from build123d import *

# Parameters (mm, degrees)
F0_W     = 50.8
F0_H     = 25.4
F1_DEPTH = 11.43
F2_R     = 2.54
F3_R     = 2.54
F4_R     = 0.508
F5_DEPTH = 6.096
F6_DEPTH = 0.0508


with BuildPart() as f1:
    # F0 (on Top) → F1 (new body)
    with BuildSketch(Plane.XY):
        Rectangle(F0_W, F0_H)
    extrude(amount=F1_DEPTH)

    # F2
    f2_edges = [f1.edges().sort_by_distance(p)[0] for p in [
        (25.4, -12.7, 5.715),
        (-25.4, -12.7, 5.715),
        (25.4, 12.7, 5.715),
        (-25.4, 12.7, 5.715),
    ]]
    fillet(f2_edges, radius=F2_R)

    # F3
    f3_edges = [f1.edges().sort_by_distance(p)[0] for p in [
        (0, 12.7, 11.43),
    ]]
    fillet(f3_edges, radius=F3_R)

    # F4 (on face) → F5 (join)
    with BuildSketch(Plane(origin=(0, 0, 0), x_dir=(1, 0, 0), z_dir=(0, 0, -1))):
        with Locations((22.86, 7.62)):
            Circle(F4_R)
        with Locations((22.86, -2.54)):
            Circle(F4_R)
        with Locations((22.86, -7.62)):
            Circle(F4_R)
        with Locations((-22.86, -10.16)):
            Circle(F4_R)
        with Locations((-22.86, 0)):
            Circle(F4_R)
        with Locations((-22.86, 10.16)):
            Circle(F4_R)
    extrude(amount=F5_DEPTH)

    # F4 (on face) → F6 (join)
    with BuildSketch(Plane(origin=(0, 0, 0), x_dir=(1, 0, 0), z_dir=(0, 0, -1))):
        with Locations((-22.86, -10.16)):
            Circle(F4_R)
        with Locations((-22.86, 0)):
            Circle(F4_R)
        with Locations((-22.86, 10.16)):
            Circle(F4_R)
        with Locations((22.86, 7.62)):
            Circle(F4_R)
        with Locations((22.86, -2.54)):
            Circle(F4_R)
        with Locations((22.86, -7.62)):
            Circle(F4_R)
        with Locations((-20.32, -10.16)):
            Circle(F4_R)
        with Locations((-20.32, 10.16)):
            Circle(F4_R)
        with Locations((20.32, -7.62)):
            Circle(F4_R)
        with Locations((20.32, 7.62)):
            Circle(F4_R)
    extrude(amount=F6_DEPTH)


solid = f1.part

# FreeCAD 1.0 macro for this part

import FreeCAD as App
import Part
import Sketcher
from FreeCAD import Vector
Q = App.Units.Quantity


def edges_at(feature, points):
    """Names of the edges that pass closest to the given points."""
    edges = feature.Shape.Edges
    near = lambda p: min(range(len(edges)), key=lambda i: edges[i].distToShape(Part.Vertex(*p))[0])
    return sorted({f"Edge{near(p) + 1}" for p in points})


def add_polygon(sketch, points):
    """Adds a closed chain of lines whose ends are joined by coincident constraints."""
    first, n = sketch.GeometryCount, len(points)
    for a, b in zip(points, points[1:] + points[:1]):
        sketch.addGeometry(Part.LineSegment(App.Vector(*a, 0), App.Vector(*b, 0)), False)
    for i in range(n):
        sketch.addConstraint(Sketcher.Constraint("Coincident", first + i, 2, first + (i + 1) % n, 1))

doc = App.newDocument("Part")
body = doc.addObject("PartDesign::Body", "Body")

# Sketch on XY plane
sketch1 = doc.addObject("Sketcher::SketchObject", "Sketch")
body.addObject(sketch1)
sketch1.AttachmentSupport = (doc.XY_Plane, [""])
sketch1.MapMode = "FlatFace"
add_polygon(sketch1, [(-25, 13), (-25, -13), (25, -13), (25, 13)])  # lines 0-3
sketch1.addConstraint([
    Sketcher.Constraint("Vertical", 0),
    Sketcher.Constraint("Horizontal", 1),
    Sketcher.Constraint("Vertical", 2),
    Sketcher.Constraint("Horizontal", 3),
    Sketcher.Constraint("Symmetric", 0, 2, 2, 2, -1, 1),
    Sketcher.Constraint("DistanceX", 1, 1, 1, 2, Q("2 in")),
    Sketcher.Constraint("DistanceY", 0, 2, 0, 1, Q("1 in")),
])
pad1 = doc.addObject("PartDesign::Pad", "Pad")
body.addObject(pad1)
pad1.Profile = sketch1
pad1.Length = Q("0.45 in")
doc.recompute()

fillet = doc.addObject("PartDesign::Fillet", "Fillet")
body.addObject(fillet)
fillet.Base = (pad1, edges_at(pad1, [
    (25.4, -12.7, 5.715),
    (-25.4, -12.7, 5.715),
    (25.4, 12.7, 5.715),
    (-25.4, 12.7, 5.715),
]))
fillet.Radius = Q("0.1 in")
doc.recompute()

fillet2 = doc.addObject("PartDesign::Fillet", "Fillet001")
body.addObject(fillet2)
fillet2.Base = (fillet, edges_at(fillet, [(0, 12.7, 11.43)]))
fillet2.Radius = Q("0.1 in")

# Sketch on XY plane
sketch2 = doc.addObject("Sketcher::SketchObject", "Sketch001")
body.addObject(sketch2)
sketch2.AttachmentSupport = (doc.XY_Plane, [""])
sketch2.MapMode = "FlatFace"
sketch2.addGeometry([
    Part.Circle(Vector(22.9, -7.6, 0), Vector(0, 0, 1), 0.5),  # 0
    Part.Circle(Vector(22.9, 2.5, 0), Vector(0, 0, 1), 0.5),  # 1
    Part.Circle(Vector(22.9, 7.6, 0), Vector(0, 0, 1), 0.5),  # 2
    Part.Circle(Vector(-22.9, 10.2, 0), Vector(0, 0, 1), 0.5),  # 3
    Part.Circle(Vector(-22.9, 0, 0), Vector(0, 0, 1), 0.5),  # 4
    Part.Circle(Vector(-22.9, -10.2, 0), Vector(0, 0, 1), 0.5),  # 5
], False)
sketch2.addConstraint([
    Sketcher.Constraint("Equal", 0, 1),
    Sketcher.Constraint("Equal", 1, 2),
    Sketcher.Constraint("Equal", 2, 3),
    Sketcher.Constraint("Equal", 3, 4),
    Sketcher.Constraint("Equal", 4, 5),
    Sketcher.Constraint("Symmetric", 0, 3, 2, 3, -1),
    Sketcher.Constraint("Symmetric", 3, 3, 5, 3, -1),
    Sketcher.Constraint("PointOnObject", 4, 3, -1),
    Sketcher.Constraint("Vertical", 0, 3, 1, 3),
    Sketcher.Constraint("Vertical", 3, 3, 4, 3),
    Sketcher.Constraint("Diameter", 0, Q("0.04 in")),
    Sketcher.Constraint("DistanceX", -1, 1, 0, 3, Q("0.9 in")),
    Sketcher.Constraint("DistanceY", 0, 3, -1, 1, Q("0.3 in")),
    Sketcher.Constraint("DistanceY", -1, 1, 1, 3, Q("0.1 in")),
    Sketcher.Constraint("DistanceX", 3, 3, -1, 1, Q("0.9 in")),
    Sketcher.Constraint("DistanceY", -1, 1, 3, 3, Q("0.4 in")),
])
pad2 = doc.addObject("PartDesign::Pad", "Pad001")
body.addObject(pad2)
pad2.Profile = sketch2
pad2.Length = Q("0.24 in")
pad2.Reversed = True

# Sketch on XY plane
sketch3 = doc.addObject("Sketcher::SketchObject", "Sketch002")
body.addObject(sketch3)
sketch3.AttachmentSupport = (doc.XY_Plane, [""])
sketch3.MapMode = "FlatFace"
sketch3.addGeometry([
    Part.Circle(Vector(-22.9, 10.2, 0), Vector(0, 0, 1), 0.5),  # 0
    Part.Circle(Vector(-22.9, 0, 0), Vector(0, 0, 1), 0.5),  # 1
    Part.Circle(Vector(-22.9, -10.2, 0), Vector(0, 0, 1), 0.5),  # 2
    Part.Circle(Vector(22.9, -7.6, 0), Vector(0, 0, 1), 0.5),  # 3
    Part.Circle(Vector(22.9, 2.5, 0), Vector(0, 0, 1), 0.5),  # 4
    Part.Circle(Vector(22.9, 7.6, 0), Vector(0, 0, 1), 0.5),  # 5
    Part.Circle(Vector(-20.3, 10.2, 0), Vector(0, 0, 1), 0.5),  # 6
    Part.Circle(Vector(-20.3, -10.2, 0), Vector(0, 0, 1), 0.5),  # 7
    Part.Circle(Vector(20.3, 7.6, 0), Vector(0, 0, 1), 0.5),  # 8
    Part.Circle(Vector(20.3, -7.6, 0), Vector(0, 0, 1), 0.5),  # 9
], False)
sketch3.addConstraint([
    Sketcher.Constraint("Equal", 0, 1),
    Sketcher.Constraint("Equal", 1, 2),
    Sketcher.Constraint("Equal", 2, 3),
    Sketcher.Constraint("Equal", 3, 4),
    Sketcher.Constraint("Equal", 4, 5),
    Sketcher.Constraint("Equal", 5, 6),
    Sketcher.Constraint("Equal", 6, 7),
    Sketcher.Constraint("Equal", 7, 8),
    Sketcher.Constraint("Equal", 8, 9),
    Sketcher.Constraint("Symmetric", 0, 3, 2, 3, -1),
    Sketcher.Constraint("Symmetric", 3, 3, 5, 3, -1),
    Sketcher.Constraint("Symmetric", 6, 3, 7, 3, -1),
    Sketcher.Constraint("Symmetric", 8, 3, 9, 3, -1),
    Sketcher.Constraint("PointOnObject", 1, 3, -1),
    Sketcher.Constraint("Horizontal", 0, 3, 6, 3),
    Sketcher.Constraint("Horizontal", 5, 3, 8, 3),
    Sketcher.Constraint("Vertical", 0, 3, 1, 3),
    Sketcher.Constraint("Vertical", 3, 3, 4, 3),
    Sketcher.Constraint("Diameter", 0, Q("0.04 in")),
    Sketcher.Constraint("DistanceX", 0, 3, -1, 1, Q("0.9 in")),
    Sketcher.Constraint("DistanceY", -1, 1, 0, 3, Q("0.4 in")),
    Sketcher.Constraint("DistanceX", -1, 1, 3, 3, Q("0.9 in")),
    Sketcher.Constraint("DistanceY", 3, 3, -1, 1, Q("0.3 in")),
    Sketcher.Constraint("DistanceY", -1, 1, 4, 3, Q("0.1 in")),
    Sketcher.Constraint("DistanceX", 6, 3, -1, 1, Q("0.8 in")),
    Sketcher.Constraint("DistanceX", -1, 1, 8, 3, Q("0.8 in")),
])
pad3 = doc.addObject("PartDesign::Pad", "Pad002")
body.addObject(pad3)
pad3.Profile = sketch3
pad3.Length = Q("0.002 in")
pad3.Reversed = True

doc.recompute()
